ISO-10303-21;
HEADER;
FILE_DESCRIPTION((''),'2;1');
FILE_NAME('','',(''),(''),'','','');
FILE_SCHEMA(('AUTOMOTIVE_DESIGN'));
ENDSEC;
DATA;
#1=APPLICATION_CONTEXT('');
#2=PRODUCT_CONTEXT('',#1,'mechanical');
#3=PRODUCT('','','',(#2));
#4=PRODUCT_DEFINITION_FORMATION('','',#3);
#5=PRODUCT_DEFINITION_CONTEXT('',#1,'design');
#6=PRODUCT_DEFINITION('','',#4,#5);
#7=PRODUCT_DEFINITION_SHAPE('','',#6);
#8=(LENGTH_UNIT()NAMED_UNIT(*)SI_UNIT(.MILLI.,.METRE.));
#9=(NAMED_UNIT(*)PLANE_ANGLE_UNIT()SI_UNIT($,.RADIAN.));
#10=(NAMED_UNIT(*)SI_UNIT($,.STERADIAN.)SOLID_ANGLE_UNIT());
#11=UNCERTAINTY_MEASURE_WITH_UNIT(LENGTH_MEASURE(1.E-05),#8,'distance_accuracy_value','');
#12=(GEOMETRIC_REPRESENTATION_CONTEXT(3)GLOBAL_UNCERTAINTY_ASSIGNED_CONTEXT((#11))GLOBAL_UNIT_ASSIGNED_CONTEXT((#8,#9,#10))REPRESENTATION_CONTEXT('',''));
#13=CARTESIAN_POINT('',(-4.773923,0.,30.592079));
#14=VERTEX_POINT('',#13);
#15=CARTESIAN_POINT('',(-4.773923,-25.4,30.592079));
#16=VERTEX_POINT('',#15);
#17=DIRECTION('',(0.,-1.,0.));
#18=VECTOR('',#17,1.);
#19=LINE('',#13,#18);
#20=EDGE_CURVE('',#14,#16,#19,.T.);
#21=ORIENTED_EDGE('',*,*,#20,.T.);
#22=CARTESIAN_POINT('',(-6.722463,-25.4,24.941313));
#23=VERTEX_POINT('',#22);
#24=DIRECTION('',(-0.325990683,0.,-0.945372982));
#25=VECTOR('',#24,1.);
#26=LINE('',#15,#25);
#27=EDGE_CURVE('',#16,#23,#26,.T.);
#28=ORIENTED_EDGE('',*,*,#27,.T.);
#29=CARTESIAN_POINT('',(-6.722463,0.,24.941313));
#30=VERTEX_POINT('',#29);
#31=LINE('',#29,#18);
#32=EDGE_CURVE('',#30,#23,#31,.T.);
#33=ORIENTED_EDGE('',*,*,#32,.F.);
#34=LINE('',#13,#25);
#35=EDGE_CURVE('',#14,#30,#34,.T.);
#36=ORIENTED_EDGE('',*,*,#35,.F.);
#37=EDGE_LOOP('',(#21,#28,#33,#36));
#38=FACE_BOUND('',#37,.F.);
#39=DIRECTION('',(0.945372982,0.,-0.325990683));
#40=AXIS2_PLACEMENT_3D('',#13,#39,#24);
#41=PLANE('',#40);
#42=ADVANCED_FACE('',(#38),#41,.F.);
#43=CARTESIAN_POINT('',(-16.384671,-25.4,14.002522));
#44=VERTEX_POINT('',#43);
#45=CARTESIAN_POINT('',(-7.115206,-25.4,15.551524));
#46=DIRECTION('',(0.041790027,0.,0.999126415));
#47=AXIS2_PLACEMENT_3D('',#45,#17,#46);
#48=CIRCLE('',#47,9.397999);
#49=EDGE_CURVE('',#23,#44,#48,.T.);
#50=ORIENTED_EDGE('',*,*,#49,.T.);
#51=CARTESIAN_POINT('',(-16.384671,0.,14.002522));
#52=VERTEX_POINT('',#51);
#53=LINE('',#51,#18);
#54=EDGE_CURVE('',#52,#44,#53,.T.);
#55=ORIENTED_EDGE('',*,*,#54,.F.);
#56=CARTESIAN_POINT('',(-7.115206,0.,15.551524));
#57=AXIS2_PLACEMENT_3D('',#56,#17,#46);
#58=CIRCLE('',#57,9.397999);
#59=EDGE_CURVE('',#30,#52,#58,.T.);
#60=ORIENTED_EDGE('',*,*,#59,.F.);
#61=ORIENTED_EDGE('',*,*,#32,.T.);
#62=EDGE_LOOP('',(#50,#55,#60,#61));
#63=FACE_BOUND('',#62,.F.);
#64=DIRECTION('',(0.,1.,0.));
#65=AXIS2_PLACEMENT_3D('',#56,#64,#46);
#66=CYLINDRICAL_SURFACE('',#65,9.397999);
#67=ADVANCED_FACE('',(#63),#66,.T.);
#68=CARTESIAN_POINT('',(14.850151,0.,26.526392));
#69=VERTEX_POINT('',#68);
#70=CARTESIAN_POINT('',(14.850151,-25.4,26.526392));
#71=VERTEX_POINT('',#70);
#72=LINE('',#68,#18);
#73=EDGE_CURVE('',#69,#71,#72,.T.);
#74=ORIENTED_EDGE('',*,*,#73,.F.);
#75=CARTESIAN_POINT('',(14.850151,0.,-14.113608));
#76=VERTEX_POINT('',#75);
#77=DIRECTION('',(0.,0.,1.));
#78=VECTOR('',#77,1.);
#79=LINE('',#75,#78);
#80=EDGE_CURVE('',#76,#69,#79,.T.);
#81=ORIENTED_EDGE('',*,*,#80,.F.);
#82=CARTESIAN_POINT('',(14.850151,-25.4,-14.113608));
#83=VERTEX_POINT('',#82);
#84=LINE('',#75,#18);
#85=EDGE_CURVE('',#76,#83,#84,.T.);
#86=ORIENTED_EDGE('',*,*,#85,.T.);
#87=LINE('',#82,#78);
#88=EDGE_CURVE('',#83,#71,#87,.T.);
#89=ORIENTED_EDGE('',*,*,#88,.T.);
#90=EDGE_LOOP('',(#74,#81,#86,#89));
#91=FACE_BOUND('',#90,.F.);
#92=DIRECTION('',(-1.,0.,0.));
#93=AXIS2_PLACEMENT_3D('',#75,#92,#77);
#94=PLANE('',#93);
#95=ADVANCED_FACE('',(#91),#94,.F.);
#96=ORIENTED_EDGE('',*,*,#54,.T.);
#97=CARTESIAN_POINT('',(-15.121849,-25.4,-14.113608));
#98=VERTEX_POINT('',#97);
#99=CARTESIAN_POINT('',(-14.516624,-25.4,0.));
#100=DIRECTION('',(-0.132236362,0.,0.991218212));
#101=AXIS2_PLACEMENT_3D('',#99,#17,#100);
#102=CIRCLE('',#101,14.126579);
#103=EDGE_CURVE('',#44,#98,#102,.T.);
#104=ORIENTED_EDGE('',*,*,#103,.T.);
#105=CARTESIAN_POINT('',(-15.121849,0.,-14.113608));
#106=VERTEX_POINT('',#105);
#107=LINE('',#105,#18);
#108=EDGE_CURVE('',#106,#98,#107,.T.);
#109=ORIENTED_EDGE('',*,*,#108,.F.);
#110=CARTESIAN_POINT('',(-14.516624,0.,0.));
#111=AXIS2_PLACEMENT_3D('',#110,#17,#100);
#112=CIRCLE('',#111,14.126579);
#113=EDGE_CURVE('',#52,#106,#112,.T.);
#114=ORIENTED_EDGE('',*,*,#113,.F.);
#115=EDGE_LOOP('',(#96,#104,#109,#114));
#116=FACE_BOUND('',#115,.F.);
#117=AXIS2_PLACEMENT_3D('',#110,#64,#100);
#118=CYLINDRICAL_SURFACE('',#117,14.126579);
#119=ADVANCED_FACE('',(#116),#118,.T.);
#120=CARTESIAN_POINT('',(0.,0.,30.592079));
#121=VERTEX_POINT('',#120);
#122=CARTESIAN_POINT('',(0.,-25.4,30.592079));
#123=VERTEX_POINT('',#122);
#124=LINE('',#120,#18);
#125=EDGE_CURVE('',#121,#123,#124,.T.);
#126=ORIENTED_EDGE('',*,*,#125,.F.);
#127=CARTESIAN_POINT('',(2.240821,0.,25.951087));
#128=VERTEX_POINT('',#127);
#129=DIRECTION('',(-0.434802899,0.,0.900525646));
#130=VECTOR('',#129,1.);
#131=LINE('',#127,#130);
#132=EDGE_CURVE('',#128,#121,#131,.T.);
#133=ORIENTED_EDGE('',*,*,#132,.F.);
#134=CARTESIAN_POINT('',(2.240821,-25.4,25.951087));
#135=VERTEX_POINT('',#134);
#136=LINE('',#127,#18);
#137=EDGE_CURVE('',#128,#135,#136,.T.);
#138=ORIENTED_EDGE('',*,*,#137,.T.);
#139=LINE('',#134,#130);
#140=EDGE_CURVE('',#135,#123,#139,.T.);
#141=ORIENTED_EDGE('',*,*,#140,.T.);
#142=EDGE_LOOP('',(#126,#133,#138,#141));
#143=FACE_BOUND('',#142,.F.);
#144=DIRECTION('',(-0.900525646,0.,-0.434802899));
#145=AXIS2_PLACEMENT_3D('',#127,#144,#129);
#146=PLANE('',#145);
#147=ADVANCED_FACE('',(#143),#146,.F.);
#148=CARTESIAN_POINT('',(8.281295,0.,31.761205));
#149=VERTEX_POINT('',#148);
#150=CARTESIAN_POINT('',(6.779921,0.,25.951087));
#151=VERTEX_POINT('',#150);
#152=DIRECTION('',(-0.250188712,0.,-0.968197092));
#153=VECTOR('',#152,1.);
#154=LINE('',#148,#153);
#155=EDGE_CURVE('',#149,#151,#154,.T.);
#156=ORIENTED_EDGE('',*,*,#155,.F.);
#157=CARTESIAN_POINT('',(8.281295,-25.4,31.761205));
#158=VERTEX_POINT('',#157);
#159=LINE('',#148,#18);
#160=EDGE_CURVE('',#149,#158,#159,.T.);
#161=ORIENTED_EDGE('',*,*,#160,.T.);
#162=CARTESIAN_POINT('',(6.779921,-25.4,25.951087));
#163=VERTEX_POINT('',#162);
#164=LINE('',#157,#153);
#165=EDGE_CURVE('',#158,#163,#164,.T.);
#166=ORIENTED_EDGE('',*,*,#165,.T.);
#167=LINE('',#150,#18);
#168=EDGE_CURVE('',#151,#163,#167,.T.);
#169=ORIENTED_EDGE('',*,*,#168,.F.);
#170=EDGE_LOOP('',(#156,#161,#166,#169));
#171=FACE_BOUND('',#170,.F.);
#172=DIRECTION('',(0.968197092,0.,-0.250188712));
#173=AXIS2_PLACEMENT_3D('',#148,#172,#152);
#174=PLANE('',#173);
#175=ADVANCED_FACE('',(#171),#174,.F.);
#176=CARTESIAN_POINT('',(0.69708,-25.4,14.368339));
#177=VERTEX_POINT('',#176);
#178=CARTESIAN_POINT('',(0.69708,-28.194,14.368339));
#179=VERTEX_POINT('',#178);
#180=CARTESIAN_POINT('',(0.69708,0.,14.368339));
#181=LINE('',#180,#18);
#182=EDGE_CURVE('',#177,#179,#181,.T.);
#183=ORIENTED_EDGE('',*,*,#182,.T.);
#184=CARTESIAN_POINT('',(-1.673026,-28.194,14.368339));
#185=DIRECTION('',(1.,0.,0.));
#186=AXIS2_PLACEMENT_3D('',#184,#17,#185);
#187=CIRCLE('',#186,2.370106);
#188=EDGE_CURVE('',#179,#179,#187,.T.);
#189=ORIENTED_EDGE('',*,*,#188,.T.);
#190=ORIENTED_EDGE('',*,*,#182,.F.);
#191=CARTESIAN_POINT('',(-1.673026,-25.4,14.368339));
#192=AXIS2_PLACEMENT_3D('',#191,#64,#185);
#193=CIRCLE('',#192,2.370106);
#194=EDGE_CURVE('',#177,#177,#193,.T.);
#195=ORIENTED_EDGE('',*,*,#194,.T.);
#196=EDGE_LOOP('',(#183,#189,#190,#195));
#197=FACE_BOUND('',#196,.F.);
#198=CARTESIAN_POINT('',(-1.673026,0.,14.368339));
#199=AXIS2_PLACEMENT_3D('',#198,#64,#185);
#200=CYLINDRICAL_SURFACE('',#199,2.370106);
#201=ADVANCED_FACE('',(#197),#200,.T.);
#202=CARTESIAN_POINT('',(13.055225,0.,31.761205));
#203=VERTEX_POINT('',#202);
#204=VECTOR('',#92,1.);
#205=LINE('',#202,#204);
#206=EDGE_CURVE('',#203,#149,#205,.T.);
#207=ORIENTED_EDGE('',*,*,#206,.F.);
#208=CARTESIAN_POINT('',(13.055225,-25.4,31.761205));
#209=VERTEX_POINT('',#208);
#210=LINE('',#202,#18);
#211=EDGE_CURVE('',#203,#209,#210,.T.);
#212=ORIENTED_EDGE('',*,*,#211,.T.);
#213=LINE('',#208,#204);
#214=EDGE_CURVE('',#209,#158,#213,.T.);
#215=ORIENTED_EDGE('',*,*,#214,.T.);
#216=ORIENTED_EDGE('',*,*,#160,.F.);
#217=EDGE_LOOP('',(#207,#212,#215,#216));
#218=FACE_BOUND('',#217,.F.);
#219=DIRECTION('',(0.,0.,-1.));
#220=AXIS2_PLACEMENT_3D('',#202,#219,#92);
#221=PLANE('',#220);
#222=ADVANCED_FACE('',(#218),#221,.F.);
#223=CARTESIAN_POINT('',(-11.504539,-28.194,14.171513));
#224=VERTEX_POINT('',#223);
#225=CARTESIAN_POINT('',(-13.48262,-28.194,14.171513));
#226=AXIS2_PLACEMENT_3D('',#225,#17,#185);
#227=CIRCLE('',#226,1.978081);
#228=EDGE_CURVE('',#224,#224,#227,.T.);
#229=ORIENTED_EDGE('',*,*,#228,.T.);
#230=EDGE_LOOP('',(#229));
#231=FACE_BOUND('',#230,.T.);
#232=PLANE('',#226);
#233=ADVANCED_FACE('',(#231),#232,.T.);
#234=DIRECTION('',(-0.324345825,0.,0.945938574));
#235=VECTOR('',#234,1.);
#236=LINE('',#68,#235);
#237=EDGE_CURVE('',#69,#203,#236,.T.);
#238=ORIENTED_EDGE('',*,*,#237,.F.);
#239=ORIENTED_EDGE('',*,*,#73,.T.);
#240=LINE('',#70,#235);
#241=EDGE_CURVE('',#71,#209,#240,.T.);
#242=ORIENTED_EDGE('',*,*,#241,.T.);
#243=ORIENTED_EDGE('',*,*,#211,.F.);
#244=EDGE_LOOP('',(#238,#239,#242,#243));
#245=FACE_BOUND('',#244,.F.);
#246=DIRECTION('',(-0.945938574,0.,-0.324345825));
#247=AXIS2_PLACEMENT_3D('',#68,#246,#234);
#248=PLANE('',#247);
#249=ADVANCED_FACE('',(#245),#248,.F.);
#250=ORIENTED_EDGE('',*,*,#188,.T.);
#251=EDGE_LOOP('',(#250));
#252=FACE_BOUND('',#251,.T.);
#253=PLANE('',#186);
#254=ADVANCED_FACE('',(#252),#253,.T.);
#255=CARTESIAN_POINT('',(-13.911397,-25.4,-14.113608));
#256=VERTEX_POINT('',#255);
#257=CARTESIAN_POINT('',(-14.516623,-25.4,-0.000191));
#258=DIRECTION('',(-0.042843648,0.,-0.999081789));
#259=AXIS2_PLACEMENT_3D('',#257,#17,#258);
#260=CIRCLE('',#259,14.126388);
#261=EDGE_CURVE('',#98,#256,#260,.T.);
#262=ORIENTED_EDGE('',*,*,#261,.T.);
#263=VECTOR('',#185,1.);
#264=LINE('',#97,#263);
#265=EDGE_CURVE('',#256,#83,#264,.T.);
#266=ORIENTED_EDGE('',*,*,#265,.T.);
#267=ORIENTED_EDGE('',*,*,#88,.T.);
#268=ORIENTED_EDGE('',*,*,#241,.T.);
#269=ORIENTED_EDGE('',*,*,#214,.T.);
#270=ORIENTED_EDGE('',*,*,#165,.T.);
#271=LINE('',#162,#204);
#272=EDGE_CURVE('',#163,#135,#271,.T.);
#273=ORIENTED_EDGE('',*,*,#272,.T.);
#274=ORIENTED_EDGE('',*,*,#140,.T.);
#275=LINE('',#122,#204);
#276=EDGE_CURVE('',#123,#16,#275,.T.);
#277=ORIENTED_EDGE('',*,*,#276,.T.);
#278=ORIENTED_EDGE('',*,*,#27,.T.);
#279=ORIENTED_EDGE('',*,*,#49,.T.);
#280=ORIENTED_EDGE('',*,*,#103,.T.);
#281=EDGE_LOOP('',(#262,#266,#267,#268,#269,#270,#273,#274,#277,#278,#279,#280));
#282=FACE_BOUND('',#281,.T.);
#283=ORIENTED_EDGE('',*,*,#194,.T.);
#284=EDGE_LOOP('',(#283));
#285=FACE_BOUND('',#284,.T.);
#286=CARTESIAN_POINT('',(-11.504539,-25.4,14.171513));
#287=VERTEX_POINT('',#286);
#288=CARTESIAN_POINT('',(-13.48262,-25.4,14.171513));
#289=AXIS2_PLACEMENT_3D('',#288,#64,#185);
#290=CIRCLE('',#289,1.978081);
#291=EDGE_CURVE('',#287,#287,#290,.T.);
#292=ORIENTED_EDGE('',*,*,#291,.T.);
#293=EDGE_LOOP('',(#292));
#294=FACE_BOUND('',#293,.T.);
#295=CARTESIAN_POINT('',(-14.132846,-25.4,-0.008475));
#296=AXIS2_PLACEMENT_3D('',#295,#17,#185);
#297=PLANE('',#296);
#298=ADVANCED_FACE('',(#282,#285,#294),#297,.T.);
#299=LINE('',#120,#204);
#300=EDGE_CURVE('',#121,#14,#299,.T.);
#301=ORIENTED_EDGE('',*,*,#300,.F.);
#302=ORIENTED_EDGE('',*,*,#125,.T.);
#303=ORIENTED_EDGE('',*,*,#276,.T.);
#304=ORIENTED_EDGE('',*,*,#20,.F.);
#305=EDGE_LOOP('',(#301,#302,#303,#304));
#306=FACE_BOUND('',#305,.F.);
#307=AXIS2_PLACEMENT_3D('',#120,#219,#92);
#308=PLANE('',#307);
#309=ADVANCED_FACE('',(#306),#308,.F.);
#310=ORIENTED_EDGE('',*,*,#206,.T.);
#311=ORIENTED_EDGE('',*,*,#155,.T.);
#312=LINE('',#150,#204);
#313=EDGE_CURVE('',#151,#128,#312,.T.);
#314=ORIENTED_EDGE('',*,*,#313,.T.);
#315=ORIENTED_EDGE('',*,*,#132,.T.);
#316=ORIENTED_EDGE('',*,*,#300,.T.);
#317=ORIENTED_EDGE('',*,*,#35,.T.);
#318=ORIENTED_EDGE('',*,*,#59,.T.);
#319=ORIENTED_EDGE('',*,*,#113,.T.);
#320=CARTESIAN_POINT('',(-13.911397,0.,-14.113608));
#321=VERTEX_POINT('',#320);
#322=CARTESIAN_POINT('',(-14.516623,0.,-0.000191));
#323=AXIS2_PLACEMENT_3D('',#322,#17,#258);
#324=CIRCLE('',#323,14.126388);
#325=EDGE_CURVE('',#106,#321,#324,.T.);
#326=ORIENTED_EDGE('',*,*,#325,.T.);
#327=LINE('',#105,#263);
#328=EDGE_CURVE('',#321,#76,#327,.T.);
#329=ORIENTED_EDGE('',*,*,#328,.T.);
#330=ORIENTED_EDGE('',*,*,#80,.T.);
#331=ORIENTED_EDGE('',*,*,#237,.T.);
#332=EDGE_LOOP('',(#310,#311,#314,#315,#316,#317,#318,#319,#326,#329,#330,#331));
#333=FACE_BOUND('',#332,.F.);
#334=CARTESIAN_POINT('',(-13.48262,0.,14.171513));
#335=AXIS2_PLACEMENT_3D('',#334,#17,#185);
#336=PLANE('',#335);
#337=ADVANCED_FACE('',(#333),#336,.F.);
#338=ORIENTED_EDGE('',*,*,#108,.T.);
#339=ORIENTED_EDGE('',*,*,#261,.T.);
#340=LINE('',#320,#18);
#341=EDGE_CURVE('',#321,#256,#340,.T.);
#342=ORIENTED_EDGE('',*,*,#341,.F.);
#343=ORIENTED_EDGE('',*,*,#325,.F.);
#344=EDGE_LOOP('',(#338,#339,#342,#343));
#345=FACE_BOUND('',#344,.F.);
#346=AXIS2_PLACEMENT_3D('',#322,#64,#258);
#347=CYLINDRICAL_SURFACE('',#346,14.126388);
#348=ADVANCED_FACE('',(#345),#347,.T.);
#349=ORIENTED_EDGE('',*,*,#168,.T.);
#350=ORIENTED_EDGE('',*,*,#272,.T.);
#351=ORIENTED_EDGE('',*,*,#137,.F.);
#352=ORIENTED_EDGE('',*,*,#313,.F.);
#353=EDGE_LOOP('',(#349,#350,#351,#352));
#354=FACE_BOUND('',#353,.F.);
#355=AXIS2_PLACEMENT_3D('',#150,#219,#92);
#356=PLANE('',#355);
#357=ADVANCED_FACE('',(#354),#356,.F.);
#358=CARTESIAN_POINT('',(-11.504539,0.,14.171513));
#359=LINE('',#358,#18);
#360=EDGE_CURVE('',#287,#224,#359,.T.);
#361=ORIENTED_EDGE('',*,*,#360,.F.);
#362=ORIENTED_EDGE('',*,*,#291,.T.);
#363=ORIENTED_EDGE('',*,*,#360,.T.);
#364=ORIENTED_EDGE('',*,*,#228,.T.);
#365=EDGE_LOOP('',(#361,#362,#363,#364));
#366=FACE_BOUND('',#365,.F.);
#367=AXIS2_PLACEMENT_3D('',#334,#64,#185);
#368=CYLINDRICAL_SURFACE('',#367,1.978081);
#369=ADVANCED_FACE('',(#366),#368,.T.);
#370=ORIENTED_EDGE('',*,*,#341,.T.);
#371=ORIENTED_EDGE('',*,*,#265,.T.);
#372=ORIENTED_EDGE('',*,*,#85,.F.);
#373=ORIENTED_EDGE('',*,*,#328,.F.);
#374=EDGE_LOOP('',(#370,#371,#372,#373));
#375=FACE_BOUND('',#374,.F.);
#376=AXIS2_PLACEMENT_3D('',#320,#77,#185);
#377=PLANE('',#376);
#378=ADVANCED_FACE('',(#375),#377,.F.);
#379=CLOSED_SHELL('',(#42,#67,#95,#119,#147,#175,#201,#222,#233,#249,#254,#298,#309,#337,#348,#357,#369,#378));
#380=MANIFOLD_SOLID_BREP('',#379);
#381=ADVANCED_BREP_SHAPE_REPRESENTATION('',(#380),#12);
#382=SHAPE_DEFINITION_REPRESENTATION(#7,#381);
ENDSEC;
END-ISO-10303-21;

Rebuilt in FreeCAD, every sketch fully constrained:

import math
import FreeCAD as App
import Part
import Sketcher
Q = App.Units.Quantity

doc = App.newDocument("Part")
body = doc.addObject("PartDesign::Body", "Body")

sketch1 = body.newObject("Sketcher::SketchObject", "Sketch")
sketch1.AttachmentSupport = (doc.getObject("XZ_Plane"), [""])
sketch1.MapMode = "FlatFace"
sketch1.addGeometry(Part.ArcOfCircle(Part.Circle(App.Vector(-14.516624, 0, 0), App.Vector(0, 0, 1), 14.126579), math.radians(97.598842), math.radians(267.544524)), False)
sketch1.addGeometry(Part.ArcOfCircle(Part.Circle(App.Vector(-14.516623, -0.000191, 0), App.Vector(0, 0, 1), 14.126388), math.radians(-92.455512), math.radians(-87.544488)), False)
sketch1.addGeometry(Part.LineSegment(App.Vector(-13.911397, -14.113608, 0), App.Vector(14.850151, -14.113608, 0)), False)
sketch1.addGeometry(Part.LineSegment(App.Vector(14.850151, -14.113608, 0), App.Vector(14.850151, 26.526392, 0)), False)
sketch1.addGeometry(Part.LineSegment(App.Vector(14.850151, 26.526392, 0), App.Vector(13.055225, 31.761205, 0)), False)
sketch1.addGeometry(Part.LineSegment(App.Vector(13.055225, 31.761205, 0), App.Vector(8.281295, 31.761205, 0)), False)
sketch1.addGeometry(Part.LineSegment(App.Vector(8.281295, 31.761205, 0), App.Vector(6.779921, 25.951087, 0)), False)
sketch1.addGeometry(Part.LineSegment(App.Vector(6.779921, 25.951087, 0), App.Vector(2.240821, 25.951087, 0)), False)
sketch1.addGeometry(Part.LineSegment(App.Vector(2.240821, 25.951087, 0), App.Vector(0, 30.592079, 0)), False)
sketch1.addGeometry(Part.LineSegment(App.Vector(0, 30.592079, 0), App.Vector(-4.773923, 30.592079, 0)), False)
sketch1.addGeometry(Part.LineSegment(App.Vector(-4.773923, 30.592079, 0), App.Vector(-6.722463, 24.941313, 0)), False)
sketch1.addGeometry(Part.ArcOfCircle(Part.Circle(App.Vector(-7.115206, 15.551524, 0), App.Vector(0, 0, 1), 9.397999), math.radians(87.60491), math.radians(189.486922)), False)
sketch1.addConstraint(Sketcher.Constraint("Coincident", 0, 2, 1, 1))
sketch1.addConstraint(Sketcher.Constraint("Coincident", 1, 2, 2, 1))
sketch1.addConstraint(Sketcher.Constraint("Coincident", 2, 2, 3, 1))
sketch1.addConstraint(Sketcher.Constraint("Coincident", 3, 2, 4, 1))
sketch1.addConstraint(Sketcher.Constraint("Coincident", 4, 2, 5, 1))
sketch1.addConstraint(Sketcher.Constraint("Coincident", 5, 2, 6, 1))
sketch1.addConstraint(Sketcher.Constraint("Coincident", 6, 2, 7, 1))
sketch1.addConstraint(Sketcher.Constraint("Coincident", 7, 2, 8, 1))
sketch1.addConstraint(Sketcher.Constraint("Coincident", 8, 2, 9, 1))
sketch1.addConstraint(Sketcher.Constraint("Coincident", 9, 2, 10, 1))
sketch1.addConstraint(Sketcher.Constraint("Coincident", 10, 2, 11, 1))
sketch1.addConstraint(Sketcher.Constraint("Coincident", 11, 2, 0, 1))
sketch1.addConstraint(Sketcher.Constraint("Horizontal", 2))
sketch1.addConstraint(Sketcher.Constraint("Vertical", 3))
sketch1.addConstraint(Sketcher.Constraint("Horizontal", 5))
sketch1.addConstraint(Sketcher.Constraint("Horizontal", 7))
sketch1.addConstraint(Sketcher.Constraint("Horizontal", 9))
sketch1.addConstraint(Sketcher.Constraint("PointOnObject", 0, 3, -1))
sketch1.addConstraint(Sketcher.Constraint("PointOnObject", 8, 2, -2))
sketch1.addConstraint(Sketcher.Constraint("Radius", 11, Q("0.37 in")))
sketch1.addConstraint(Sketcher.Constraint("DistanceY", 3, 1, 3, 2, Q("1.6 in")))
sketch1.addConstraint(Sketcher.Constraint("DistanceX", 0, 2, 2, 2, Q("1.18 in")))
sketch1.addConstraint(Sketcher.Constraint("Radius", 0, 14.126579))
sketch1.addConstraint(Sketcher.Constraint("Radius", 1, 14.126388))
sketch1.addConstraint(Sketcher.Constraint("DistanceX", 7, 2, 7, 1, 4.5391))
sketch1.addConstraint(Sketcher.Constraint("DistanceX", 5, 2, 5, 1, 4.77393))
sketch1.addConstraint(Sketcher.Constraint("DistanceX", 11, 3, 5, 2, 15.396501))
sketch1.addConstraint(Sketcher.Constraint("DistanceY", 11, 2, 11, 3, 1.549002))
sketch1.addConstraint(Sketcher.Constraint("Distance", 4, 5.533988))
sketch1.addConstraint(Sketcher.Constraint("DistanceX", 2, 1, 2, 2, 28.761548))
sketch1.addConstraint(Sketcher.Constraint("DistanceX", 9, 2, 9, 1, 4.773923))
sketch1.addConstraint(Sketcher.Constraint("DistanceY", 1, 3, -1, 1, 0.000191))
sketch1.addConstraint(Sketcher.Constraint("DistanceX", 0, 2, -1, 1, 15.121849))
sketch1.addConstraint(Sketcher.Constraint("DistanceX", -1, 1, 6, 2, 6.779921))
sketch1.addConstraint(Sketcher.Constraint("DistanceY", -1, 1, 8, 2, 30.592079))
sketch1.addConstraint(Sketcher.Constraint("DistanceX", 11, 2, -1, 1, 16.384671))
sketch1.addConstraint(Sketcher.Constraint("DistanceY", -1, 1, 11, 2, 14.002522))
sketch1.addConstraint(Sketcher.Constraint("DistanceY", 7, 2, 8, 2, 4.640992))
sketch1.addConstraint(Sketcher.Constraint("DistanceX", 10, 2, 9, 2, 1.94854))
pad1 = body.newObject("PartDesign::Pad", "Pad")
pad1.Profile = sketch1
pad1.Length = Q("1 in")

sketch2 = body.newObject("Sketcher::SketchObject", "Sketch001")
sketch2.AttachmentSupport = (doc.getObject("XZ_Plane"), [""])
sketch2.MapMode = "FlatFace"
sketch2.addGeometry(Part.Circle(App.Vector(-13.5, 14.2, 0), App.Vector(0, 0, 1), 2), False)
sketch2.addGeometry(Part.Circle(App.Vector(-1.7, 14.4, 0), App.Vector(0, 0, 1), 2.4), False)
sketch2.addConstraint(Sketcher.Constraint("Diameter", 0, 3.956162))
sketch2.addConstraint(Sketcher.Constraint("Diameter", 1, 4.740212))
sketch2.addConstraint(Sketcher.Constraint("DistanceX", 0, 3, -1, 1, 13.48262))
sketch2.addConstraint(Sketcher.Constraint("DistanceY", -1, 1, 1, 3, 14.368339))
sketch2.addConstraint(Sketcher.Constraint("DistanceY", -1, 1, 0, 3, 14.171513))
sketch2.addConstraint(Sketcher.Constraint("DistanceX", 1, 3, -1, 1, 1.673026))
pad2 = body.newObject("PartDesign::Pad", "Pad001")
pad2.Profile = sketch2
pad2.Length = Q("1.11 in")

doc.recompute()
